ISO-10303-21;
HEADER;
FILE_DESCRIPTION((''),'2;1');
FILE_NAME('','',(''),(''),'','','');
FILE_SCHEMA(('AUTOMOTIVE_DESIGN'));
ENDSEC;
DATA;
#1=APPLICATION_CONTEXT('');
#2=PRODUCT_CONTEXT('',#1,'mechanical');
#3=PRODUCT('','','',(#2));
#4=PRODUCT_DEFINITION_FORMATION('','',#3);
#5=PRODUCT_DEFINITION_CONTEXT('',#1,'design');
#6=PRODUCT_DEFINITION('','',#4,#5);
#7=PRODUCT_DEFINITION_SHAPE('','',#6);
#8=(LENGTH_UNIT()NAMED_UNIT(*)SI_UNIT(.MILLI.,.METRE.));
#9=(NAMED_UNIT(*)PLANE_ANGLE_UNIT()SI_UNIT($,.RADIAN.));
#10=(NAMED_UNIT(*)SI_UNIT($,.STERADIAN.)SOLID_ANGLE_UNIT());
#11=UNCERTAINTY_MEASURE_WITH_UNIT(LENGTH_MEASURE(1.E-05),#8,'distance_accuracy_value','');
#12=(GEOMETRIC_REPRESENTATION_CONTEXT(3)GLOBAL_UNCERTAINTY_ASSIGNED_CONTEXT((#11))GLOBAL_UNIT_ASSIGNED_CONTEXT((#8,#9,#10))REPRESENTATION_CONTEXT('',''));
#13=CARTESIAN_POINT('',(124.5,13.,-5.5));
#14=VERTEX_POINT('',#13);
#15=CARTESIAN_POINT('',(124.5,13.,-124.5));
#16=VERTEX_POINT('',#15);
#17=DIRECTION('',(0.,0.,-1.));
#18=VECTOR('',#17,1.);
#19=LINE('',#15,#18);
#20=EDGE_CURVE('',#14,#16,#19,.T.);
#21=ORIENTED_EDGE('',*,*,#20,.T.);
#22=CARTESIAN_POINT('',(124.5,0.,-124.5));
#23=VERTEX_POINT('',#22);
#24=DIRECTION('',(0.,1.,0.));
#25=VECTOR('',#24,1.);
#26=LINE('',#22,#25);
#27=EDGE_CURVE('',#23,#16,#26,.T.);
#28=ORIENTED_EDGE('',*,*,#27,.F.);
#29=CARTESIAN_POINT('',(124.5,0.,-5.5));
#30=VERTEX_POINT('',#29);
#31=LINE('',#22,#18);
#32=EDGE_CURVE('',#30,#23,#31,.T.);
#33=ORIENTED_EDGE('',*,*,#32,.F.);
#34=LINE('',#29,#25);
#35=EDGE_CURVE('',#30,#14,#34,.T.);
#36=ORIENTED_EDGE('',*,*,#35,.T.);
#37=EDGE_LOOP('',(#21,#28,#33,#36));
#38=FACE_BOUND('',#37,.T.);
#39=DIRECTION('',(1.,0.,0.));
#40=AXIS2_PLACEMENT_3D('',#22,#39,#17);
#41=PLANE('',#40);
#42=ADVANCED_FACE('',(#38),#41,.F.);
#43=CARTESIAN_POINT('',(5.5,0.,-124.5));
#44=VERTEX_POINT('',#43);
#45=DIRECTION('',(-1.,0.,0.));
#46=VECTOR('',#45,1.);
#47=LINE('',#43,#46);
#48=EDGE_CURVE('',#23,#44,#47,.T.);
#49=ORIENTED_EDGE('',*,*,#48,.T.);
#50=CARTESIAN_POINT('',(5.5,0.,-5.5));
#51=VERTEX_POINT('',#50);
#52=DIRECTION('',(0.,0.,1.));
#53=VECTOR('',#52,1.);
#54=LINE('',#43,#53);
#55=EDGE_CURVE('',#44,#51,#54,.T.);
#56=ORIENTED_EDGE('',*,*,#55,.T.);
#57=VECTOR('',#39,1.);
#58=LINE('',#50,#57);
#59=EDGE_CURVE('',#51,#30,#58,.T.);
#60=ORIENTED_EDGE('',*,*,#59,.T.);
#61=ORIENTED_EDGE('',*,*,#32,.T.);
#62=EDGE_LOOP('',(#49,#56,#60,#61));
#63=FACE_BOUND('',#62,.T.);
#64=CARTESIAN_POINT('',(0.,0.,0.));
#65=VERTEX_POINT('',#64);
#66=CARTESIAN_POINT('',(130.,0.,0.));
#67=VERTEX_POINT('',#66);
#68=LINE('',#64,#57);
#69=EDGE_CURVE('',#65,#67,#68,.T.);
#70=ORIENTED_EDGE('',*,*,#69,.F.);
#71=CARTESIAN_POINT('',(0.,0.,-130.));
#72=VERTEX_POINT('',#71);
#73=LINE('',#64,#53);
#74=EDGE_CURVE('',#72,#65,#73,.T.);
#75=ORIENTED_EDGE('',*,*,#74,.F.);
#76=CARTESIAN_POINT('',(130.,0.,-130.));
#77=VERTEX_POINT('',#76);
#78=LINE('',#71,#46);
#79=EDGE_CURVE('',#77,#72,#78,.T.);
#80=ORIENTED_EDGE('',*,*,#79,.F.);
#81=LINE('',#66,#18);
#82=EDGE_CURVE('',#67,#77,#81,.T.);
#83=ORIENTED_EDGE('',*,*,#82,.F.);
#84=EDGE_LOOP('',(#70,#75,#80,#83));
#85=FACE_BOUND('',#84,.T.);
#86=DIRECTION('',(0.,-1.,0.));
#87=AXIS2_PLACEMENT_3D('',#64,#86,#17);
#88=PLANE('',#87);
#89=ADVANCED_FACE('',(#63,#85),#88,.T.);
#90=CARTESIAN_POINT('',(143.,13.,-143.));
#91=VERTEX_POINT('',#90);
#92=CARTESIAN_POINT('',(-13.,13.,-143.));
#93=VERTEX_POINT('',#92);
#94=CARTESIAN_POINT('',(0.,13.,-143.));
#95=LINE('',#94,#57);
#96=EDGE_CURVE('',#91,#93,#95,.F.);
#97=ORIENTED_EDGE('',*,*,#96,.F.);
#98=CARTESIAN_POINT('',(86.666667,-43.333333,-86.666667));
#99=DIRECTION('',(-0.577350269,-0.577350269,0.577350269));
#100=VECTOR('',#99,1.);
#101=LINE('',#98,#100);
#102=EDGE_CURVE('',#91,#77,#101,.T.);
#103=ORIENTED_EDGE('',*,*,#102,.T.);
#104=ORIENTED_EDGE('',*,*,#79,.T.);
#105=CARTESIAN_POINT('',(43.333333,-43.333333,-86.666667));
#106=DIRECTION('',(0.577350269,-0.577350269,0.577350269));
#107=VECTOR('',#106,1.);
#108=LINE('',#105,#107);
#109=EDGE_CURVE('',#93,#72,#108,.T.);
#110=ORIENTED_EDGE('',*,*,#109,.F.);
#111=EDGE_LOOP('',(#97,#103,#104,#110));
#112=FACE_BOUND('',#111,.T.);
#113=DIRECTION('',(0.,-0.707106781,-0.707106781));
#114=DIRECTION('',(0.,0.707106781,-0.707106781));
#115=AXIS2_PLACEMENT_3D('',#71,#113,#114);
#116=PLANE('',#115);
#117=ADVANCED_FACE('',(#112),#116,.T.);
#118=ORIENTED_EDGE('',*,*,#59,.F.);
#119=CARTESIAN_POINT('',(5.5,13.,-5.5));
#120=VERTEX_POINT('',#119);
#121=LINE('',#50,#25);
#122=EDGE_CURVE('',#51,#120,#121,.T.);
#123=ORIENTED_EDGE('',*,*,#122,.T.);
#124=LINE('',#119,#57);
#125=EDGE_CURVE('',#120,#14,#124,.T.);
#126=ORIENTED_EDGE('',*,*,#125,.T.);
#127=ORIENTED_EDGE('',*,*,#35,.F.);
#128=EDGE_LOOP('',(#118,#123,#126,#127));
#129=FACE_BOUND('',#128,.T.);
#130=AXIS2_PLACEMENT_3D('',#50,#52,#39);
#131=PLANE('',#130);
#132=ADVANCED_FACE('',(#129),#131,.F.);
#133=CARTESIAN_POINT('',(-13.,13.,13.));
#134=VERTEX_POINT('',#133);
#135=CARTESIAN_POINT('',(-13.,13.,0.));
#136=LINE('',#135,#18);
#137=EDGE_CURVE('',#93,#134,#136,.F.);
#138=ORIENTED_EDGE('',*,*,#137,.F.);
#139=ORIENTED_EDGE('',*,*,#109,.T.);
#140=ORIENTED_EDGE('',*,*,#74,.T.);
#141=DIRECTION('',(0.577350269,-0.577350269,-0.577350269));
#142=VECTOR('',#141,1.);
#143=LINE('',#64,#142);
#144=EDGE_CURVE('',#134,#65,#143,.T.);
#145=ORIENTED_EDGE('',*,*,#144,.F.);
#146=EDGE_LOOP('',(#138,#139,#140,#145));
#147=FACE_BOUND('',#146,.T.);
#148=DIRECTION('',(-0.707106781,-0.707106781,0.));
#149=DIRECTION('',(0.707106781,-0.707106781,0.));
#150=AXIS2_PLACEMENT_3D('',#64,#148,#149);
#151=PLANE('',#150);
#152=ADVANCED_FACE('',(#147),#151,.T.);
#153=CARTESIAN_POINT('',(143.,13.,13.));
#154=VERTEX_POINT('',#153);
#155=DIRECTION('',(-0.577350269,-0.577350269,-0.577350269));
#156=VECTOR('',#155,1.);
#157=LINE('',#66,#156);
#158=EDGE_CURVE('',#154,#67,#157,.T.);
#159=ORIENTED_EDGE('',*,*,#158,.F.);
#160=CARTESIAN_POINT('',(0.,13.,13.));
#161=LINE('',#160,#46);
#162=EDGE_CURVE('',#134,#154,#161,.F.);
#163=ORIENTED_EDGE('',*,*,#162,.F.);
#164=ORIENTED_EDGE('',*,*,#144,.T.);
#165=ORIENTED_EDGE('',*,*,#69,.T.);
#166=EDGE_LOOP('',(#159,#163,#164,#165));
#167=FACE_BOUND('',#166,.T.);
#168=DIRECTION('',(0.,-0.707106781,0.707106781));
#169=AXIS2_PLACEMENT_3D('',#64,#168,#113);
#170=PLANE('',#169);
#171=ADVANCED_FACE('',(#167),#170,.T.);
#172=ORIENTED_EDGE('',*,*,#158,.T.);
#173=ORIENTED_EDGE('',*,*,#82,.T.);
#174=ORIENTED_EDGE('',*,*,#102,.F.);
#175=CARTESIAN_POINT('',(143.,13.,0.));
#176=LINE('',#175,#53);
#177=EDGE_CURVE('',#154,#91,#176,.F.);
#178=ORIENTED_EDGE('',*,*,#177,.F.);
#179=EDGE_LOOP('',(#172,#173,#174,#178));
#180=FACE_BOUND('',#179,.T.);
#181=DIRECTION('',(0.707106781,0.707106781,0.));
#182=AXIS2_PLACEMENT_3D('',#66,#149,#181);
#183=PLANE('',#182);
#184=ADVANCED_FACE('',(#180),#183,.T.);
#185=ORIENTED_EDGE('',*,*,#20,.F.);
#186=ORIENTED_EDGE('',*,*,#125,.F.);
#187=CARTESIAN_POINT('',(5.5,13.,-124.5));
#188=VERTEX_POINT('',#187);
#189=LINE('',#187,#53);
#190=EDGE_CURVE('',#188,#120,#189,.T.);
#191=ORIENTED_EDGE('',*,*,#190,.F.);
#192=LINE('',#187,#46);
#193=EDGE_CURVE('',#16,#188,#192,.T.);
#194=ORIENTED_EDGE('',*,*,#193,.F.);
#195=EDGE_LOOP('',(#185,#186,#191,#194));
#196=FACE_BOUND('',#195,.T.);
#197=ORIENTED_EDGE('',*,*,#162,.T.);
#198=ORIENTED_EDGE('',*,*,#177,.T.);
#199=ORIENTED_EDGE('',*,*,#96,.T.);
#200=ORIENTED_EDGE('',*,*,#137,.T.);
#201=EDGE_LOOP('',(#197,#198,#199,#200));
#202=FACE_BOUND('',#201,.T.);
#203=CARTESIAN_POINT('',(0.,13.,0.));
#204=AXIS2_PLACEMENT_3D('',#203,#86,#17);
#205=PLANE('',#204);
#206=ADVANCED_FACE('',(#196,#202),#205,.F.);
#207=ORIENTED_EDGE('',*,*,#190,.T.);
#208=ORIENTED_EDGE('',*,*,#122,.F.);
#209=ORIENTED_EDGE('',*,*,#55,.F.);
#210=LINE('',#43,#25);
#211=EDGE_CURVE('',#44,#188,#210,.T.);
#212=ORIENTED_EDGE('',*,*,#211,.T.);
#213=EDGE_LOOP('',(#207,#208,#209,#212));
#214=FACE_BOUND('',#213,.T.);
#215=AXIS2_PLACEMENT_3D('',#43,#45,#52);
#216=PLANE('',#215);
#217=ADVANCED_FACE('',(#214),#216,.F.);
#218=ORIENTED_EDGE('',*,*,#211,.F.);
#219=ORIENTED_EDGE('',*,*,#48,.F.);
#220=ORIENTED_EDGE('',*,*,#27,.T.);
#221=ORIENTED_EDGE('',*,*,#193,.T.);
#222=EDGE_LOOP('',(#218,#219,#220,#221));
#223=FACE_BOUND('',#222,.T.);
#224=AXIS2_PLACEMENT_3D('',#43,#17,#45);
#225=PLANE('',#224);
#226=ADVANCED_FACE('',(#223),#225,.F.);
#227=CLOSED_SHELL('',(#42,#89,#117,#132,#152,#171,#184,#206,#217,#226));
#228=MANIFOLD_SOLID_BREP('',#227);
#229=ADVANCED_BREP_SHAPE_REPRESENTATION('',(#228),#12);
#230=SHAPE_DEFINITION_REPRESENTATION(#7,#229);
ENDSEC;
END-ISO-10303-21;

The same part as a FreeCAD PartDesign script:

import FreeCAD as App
import Part
import Sketcher
from FreeCAD import Vector
Q = App.Units.Quantity


def add_polygon(sketch, points):
    """Adds a closed chain of lines whose ends are joined by coincident constraints."""
    first, n = sketch.GeometryCount, len(points)
    for a, b in zip(points, points[1:] + points[:1]):
        sketch.addGeometry(Part.LineSegment(App.Vector(*a, 0), App.Vector(*b, 0)), False)
    for i in range(n):
        sketch.addConstraint(Sketcher.Constraint("Coincident", first + i, 2, first + (i + 1) % n, 1))

doc = App.newDocument("Part")
body = doc.addObject("PartDesign::Body", "Body")

# Sketch on XZ plane
sketch1 = body.newObject("Sketcher::SketchObject", "Sketch")
sketch1.AttachmentSupport = (doc.getObject("XZ_Plane"), [""])
sketch1.MapMode = "FlatFace"
add_polygon(sketch1, [(0, -130), (0, 0), (130, 0), (130, -130)])  # lines 0-3
sketch1.addConstraint(Sketcher.Constraint("Vertical", 0))
sketch1.addConstraint(Sketcher.Constraint("Horizontal", 1))
sketch1.addConstraint(Sketcher.Constraint("Vertical", 2))
sketch1.addConstraint(Sketcher.Constraint("Horizontal", 3))
sketch1.addConstraint(Sketcher.Constraint("Coincident", 0, 2, -1, 1))
sketch1.addConstraint(Sketcher.Constraint("Equal", 3, 0))
sketch1.addConstraint(Sketcher.Constraint("DistanceX", 1, 1, 1, 2, Q("130 mm")))
pad1 = body.newObject("PartDesign::Pad", "Pad")
pad1.Profile = sketch1
pad1.Length = 13
pad1.Reversed = True
pad1.TaperAngle = 45

# Sketch on XZ plane
sketch2 = body.newObject("Sketcher::SketchObject", "Sketch001")
sketch2.AttachmentSupport = (doc.getObject("XZ_Plane"), [""])
sketch2.MapMode = "FlatFace"
sketch2.AttachmentOffset = App.Placement(Vector(0, 0, -13), App.Rotation())
add_polygon(sketch2, [(6, -124), (6, -6), (124, -6), (124, -124)])  # lines 0-3
sketch2.addConstraint(Sketcher.Constraint("Vertical", 0))
sketch2.addConstraint(Sketcher.Constraint("Horizontal", 1))
sketch2.addConstraint(Sketcher.Constraint("Vertical", 2))
sketch2.addConstraint(Sketcher.Constraint("Horizontal", 3))
sketch2.addConstraint(Sketcher.Constraint("Equal", 3, 0))
sketch2.addConstraint(Sketcher.Constraint("DistanceX", 1, 1, 1, 2, Q("119 mm")))
sketch2.addConstraint(Sketcher.Constraint("DistanceX", -1, 1, 0, 2, Q("5.5 mm")))
sketch2.addConstraint(Sketcher.Constraint("DistanceY", 0, 2, -1, 1, Q("5.5 mm")))
pocket1 = body.newObject("PartDesign::Pocket", "Pocket")
pocket1.Profile = sketch2
pocket1.Length = 13
pocket1.Reversed = True

doc.recompute()
